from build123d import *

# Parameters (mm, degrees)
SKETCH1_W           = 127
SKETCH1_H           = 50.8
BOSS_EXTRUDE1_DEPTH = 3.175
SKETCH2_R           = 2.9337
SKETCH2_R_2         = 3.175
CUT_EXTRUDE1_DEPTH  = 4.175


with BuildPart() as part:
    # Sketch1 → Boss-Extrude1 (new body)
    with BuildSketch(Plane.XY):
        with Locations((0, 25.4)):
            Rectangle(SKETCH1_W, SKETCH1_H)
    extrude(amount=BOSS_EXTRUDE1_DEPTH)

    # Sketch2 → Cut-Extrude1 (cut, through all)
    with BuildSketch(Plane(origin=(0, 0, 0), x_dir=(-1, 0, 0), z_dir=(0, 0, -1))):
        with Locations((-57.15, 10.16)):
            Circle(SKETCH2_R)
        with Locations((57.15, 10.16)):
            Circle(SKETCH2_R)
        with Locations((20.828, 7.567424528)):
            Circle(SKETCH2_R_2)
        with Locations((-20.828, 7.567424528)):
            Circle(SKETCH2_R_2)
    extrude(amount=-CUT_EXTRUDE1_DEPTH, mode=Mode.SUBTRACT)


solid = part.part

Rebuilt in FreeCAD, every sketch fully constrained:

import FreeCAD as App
import Part
import Sketcher
Q = App.Units.Quantity


def add_polygon(sketch, points):
    """Adds a closed chain of lines whose ends are joined by coincident constraints."""
    first, n = sketch.GeometryCount, len(points)
    for a, b in zip(points, points[1:] + points[:1]):
        sketch.addGeometry(Part.LineSegment(App.Vector(*a, 0), App.Vector(*b, 0)), False)
    for i in range(n):
        sketch.addConstraint(Sketcher.Constraint("Coincident", first + i, 2, first + (i + 1) % n, 1))

doc = App.newDocument("Part")
body = doc.addObject("PartDesign::Body", "Body")

sketch1 = body.newObject("Sketcher::SketchObject", "Sketch")
sketch1.AttachmentSupport = (doc.getObject("XY_Plane"), [""])
sketch1.MapMode = "FlatFace"
add_polygon(sketch1, [(-63.5, 50.8), (-63.5, 0), (63.5, 0), (63.5, 50.8)])
sketch1.addConstraint(Sketcher.Constraint("Vertical", 0))
sketch1.addConstraint(Sketcher.Constraint("Horizontal", 1))
sketch1.addConstraint(Sketcher.Constraint("Vertical", 2))
sketch1.addConstraint(Sketcher.Constraint("Horizontal", 3))
sketch1.addConstraint(Sketcher.Constraint("Symmetric", 0, 2, 1, 2, -1, 1))
sketch1.addConstraint(Sketcher.Constraint("DistanceX", 1, 1, 1, 2, Q("5 in")))
sketch1.addConstraint(Sketcher.Constraint("DistanceY", 0, 2, 0, 1, Q("2 in")))
pad1 = body.newObject("PartDesign::Pad", "Pad")
pad1.Profile = sketch1
pad1.Length = Q("0.125 in")

sketch2 = body.newObject("Sketcher::SketchObject", "Sketch001")
sketch2.AttachmentSupport = (doc.getObject("XY_Plane"), [""])
sketch2.MapMode = "FlatFace"
sketch2.addGeometry(Part.Circle(App.Vector(57.15, 10.16, 0), App.Vector(0, 0, 1), 2.9337), False)
sketch2.addGeometry(Part.Circle(App.Vector(-57.15, 10.16, 0), App.Vector(0, 0, 1), 2.9337), False)
sketch2.addGeometry(Part.Circle(App.Vector(-20.828, 7.567425, 0), App.Vector(0, 0, 1), 3.175), False)
sketch2.addGeometry(Part.Circle(App.Vector(20.828, 7.567425, 0), App.Vector(0, 0, 1), 3.175), False)
sketch2.addConstraint(Sketcher.Constraint("Equal", 0, 1))
sketch2.addConstraint(Sketcher.Constraint("Equal", 2, 3))
sketch2.addConstraint(Sketcher.Constraint("Symmetric", 0, 3, 1, 3, -2))
sketch2.addConstraint(Sketcher.Constraint("Symmetric", 2, 3, 3, 3, -2))
sketch2.addConstraint(Sketcher.Constraint("Diameter", 2, Q("0.25 in")))
sketch2.addConstraint(Sketcher.Constraint("Diameter", 0, Q("0.231 in")))
sketch2.addConstraint(Sketcher.Constraint("DistanceY", -1, 1, 0, 3, Q("0.4 in")))
sketch2.addConstraint(Sketcher.Constraint("DistanceX", 1, 3, 0, 3, Q("4.5 in")))
sketch2.addConstraint(Sketcher.Constraint("DistanceX", 2, 3, -1, 1, Q("0.82 in")))
sketch2.addConstraint(Sketcher.Constraint("DistanceY", -1, 1, 2, 3, Q("7.567425 mm")))
pocket1 = body.newObject("PartDesign::Pocket", "Pocket")
pocket1.Profile = sketch2
pocket1.Type = "ThroughAll"
pocket1.Reversed = True

doc.recompute()
